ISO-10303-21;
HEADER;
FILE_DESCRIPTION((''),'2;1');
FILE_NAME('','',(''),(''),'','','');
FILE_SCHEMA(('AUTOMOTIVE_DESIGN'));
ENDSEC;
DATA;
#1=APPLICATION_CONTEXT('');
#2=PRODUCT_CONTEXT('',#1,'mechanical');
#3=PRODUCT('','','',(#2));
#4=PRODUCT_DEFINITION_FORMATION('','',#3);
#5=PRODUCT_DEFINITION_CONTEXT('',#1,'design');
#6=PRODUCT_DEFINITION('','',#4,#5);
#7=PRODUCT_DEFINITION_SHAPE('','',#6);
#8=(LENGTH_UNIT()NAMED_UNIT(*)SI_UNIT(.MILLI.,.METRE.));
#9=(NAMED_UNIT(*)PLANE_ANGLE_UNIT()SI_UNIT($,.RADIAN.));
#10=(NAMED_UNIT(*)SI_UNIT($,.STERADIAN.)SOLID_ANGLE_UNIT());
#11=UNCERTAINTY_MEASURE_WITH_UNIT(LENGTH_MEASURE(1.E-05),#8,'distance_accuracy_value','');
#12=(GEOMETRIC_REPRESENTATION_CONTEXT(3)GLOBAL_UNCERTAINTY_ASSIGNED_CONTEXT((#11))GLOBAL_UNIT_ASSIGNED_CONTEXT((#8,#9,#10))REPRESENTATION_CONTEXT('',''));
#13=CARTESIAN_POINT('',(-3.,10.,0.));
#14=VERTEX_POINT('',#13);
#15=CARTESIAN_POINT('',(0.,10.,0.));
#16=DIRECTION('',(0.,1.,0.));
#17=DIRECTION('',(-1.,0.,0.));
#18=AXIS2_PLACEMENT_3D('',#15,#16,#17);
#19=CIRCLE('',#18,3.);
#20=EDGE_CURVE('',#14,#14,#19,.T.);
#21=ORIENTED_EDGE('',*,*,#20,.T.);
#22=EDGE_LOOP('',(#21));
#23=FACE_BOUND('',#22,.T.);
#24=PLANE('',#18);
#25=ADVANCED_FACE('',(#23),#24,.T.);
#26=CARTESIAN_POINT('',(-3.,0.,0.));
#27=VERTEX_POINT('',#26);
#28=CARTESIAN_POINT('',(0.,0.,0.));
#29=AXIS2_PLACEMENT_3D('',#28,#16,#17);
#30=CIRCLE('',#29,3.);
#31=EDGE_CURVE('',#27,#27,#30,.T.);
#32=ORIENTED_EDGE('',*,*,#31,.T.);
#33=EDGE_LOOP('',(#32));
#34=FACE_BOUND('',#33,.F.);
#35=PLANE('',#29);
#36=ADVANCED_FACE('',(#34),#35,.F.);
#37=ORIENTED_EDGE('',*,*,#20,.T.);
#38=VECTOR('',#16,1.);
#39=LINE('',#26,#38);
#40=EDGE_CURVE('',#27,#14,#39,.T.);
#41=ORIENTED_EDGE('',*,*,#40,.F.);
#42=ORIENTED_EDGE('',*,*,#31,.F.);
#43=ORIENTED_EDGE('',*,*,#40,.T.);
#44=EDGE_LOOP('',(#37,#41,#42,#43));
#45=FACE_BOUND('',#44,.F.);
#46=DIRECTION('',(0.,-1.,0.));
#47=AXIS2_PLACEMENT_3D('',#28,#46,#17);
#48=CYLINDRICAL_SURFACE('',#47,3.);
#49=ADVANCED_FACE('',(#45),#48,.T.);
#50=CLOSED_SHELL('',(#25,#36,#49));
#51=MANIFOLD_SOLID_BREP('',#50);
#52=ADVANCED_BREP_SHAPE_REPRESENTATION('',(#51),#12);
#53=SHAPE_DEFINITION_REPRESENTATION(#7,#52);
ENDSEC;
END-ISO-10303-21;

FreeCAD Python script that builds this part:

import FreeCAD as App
import Part
import Sketcher

V = App.Vector

doc = App.newDocument("Part")
body = doc.addObject("PartDesign::Body", "Body")

# Sketch on XZ plane
sketch1 = body.newObject("Sketcher::SketchObject", "Sketch")
sketch1.AttachmentSupport = (doc.getObject("XZ_Plane"), [""])
sketch1.MapMode = "FlatFace"
sketch1.addGeometry(Part.Circle(V(0, 0, 0), V(0, 0, 1), 3), False)
sketch1.addConstraint([
    Sketcher.Constraint("Coincident", 0, 3, -1, 1),
    Sketcher.Constraint("Diameter", 0, 6.0),
])
pad1 = body.newObject("PartDesign::Pad", "Pad")
pad1.Profile = sketch1
pad1.Length = 10
pad1.Reversed = True

doc.recompute()
